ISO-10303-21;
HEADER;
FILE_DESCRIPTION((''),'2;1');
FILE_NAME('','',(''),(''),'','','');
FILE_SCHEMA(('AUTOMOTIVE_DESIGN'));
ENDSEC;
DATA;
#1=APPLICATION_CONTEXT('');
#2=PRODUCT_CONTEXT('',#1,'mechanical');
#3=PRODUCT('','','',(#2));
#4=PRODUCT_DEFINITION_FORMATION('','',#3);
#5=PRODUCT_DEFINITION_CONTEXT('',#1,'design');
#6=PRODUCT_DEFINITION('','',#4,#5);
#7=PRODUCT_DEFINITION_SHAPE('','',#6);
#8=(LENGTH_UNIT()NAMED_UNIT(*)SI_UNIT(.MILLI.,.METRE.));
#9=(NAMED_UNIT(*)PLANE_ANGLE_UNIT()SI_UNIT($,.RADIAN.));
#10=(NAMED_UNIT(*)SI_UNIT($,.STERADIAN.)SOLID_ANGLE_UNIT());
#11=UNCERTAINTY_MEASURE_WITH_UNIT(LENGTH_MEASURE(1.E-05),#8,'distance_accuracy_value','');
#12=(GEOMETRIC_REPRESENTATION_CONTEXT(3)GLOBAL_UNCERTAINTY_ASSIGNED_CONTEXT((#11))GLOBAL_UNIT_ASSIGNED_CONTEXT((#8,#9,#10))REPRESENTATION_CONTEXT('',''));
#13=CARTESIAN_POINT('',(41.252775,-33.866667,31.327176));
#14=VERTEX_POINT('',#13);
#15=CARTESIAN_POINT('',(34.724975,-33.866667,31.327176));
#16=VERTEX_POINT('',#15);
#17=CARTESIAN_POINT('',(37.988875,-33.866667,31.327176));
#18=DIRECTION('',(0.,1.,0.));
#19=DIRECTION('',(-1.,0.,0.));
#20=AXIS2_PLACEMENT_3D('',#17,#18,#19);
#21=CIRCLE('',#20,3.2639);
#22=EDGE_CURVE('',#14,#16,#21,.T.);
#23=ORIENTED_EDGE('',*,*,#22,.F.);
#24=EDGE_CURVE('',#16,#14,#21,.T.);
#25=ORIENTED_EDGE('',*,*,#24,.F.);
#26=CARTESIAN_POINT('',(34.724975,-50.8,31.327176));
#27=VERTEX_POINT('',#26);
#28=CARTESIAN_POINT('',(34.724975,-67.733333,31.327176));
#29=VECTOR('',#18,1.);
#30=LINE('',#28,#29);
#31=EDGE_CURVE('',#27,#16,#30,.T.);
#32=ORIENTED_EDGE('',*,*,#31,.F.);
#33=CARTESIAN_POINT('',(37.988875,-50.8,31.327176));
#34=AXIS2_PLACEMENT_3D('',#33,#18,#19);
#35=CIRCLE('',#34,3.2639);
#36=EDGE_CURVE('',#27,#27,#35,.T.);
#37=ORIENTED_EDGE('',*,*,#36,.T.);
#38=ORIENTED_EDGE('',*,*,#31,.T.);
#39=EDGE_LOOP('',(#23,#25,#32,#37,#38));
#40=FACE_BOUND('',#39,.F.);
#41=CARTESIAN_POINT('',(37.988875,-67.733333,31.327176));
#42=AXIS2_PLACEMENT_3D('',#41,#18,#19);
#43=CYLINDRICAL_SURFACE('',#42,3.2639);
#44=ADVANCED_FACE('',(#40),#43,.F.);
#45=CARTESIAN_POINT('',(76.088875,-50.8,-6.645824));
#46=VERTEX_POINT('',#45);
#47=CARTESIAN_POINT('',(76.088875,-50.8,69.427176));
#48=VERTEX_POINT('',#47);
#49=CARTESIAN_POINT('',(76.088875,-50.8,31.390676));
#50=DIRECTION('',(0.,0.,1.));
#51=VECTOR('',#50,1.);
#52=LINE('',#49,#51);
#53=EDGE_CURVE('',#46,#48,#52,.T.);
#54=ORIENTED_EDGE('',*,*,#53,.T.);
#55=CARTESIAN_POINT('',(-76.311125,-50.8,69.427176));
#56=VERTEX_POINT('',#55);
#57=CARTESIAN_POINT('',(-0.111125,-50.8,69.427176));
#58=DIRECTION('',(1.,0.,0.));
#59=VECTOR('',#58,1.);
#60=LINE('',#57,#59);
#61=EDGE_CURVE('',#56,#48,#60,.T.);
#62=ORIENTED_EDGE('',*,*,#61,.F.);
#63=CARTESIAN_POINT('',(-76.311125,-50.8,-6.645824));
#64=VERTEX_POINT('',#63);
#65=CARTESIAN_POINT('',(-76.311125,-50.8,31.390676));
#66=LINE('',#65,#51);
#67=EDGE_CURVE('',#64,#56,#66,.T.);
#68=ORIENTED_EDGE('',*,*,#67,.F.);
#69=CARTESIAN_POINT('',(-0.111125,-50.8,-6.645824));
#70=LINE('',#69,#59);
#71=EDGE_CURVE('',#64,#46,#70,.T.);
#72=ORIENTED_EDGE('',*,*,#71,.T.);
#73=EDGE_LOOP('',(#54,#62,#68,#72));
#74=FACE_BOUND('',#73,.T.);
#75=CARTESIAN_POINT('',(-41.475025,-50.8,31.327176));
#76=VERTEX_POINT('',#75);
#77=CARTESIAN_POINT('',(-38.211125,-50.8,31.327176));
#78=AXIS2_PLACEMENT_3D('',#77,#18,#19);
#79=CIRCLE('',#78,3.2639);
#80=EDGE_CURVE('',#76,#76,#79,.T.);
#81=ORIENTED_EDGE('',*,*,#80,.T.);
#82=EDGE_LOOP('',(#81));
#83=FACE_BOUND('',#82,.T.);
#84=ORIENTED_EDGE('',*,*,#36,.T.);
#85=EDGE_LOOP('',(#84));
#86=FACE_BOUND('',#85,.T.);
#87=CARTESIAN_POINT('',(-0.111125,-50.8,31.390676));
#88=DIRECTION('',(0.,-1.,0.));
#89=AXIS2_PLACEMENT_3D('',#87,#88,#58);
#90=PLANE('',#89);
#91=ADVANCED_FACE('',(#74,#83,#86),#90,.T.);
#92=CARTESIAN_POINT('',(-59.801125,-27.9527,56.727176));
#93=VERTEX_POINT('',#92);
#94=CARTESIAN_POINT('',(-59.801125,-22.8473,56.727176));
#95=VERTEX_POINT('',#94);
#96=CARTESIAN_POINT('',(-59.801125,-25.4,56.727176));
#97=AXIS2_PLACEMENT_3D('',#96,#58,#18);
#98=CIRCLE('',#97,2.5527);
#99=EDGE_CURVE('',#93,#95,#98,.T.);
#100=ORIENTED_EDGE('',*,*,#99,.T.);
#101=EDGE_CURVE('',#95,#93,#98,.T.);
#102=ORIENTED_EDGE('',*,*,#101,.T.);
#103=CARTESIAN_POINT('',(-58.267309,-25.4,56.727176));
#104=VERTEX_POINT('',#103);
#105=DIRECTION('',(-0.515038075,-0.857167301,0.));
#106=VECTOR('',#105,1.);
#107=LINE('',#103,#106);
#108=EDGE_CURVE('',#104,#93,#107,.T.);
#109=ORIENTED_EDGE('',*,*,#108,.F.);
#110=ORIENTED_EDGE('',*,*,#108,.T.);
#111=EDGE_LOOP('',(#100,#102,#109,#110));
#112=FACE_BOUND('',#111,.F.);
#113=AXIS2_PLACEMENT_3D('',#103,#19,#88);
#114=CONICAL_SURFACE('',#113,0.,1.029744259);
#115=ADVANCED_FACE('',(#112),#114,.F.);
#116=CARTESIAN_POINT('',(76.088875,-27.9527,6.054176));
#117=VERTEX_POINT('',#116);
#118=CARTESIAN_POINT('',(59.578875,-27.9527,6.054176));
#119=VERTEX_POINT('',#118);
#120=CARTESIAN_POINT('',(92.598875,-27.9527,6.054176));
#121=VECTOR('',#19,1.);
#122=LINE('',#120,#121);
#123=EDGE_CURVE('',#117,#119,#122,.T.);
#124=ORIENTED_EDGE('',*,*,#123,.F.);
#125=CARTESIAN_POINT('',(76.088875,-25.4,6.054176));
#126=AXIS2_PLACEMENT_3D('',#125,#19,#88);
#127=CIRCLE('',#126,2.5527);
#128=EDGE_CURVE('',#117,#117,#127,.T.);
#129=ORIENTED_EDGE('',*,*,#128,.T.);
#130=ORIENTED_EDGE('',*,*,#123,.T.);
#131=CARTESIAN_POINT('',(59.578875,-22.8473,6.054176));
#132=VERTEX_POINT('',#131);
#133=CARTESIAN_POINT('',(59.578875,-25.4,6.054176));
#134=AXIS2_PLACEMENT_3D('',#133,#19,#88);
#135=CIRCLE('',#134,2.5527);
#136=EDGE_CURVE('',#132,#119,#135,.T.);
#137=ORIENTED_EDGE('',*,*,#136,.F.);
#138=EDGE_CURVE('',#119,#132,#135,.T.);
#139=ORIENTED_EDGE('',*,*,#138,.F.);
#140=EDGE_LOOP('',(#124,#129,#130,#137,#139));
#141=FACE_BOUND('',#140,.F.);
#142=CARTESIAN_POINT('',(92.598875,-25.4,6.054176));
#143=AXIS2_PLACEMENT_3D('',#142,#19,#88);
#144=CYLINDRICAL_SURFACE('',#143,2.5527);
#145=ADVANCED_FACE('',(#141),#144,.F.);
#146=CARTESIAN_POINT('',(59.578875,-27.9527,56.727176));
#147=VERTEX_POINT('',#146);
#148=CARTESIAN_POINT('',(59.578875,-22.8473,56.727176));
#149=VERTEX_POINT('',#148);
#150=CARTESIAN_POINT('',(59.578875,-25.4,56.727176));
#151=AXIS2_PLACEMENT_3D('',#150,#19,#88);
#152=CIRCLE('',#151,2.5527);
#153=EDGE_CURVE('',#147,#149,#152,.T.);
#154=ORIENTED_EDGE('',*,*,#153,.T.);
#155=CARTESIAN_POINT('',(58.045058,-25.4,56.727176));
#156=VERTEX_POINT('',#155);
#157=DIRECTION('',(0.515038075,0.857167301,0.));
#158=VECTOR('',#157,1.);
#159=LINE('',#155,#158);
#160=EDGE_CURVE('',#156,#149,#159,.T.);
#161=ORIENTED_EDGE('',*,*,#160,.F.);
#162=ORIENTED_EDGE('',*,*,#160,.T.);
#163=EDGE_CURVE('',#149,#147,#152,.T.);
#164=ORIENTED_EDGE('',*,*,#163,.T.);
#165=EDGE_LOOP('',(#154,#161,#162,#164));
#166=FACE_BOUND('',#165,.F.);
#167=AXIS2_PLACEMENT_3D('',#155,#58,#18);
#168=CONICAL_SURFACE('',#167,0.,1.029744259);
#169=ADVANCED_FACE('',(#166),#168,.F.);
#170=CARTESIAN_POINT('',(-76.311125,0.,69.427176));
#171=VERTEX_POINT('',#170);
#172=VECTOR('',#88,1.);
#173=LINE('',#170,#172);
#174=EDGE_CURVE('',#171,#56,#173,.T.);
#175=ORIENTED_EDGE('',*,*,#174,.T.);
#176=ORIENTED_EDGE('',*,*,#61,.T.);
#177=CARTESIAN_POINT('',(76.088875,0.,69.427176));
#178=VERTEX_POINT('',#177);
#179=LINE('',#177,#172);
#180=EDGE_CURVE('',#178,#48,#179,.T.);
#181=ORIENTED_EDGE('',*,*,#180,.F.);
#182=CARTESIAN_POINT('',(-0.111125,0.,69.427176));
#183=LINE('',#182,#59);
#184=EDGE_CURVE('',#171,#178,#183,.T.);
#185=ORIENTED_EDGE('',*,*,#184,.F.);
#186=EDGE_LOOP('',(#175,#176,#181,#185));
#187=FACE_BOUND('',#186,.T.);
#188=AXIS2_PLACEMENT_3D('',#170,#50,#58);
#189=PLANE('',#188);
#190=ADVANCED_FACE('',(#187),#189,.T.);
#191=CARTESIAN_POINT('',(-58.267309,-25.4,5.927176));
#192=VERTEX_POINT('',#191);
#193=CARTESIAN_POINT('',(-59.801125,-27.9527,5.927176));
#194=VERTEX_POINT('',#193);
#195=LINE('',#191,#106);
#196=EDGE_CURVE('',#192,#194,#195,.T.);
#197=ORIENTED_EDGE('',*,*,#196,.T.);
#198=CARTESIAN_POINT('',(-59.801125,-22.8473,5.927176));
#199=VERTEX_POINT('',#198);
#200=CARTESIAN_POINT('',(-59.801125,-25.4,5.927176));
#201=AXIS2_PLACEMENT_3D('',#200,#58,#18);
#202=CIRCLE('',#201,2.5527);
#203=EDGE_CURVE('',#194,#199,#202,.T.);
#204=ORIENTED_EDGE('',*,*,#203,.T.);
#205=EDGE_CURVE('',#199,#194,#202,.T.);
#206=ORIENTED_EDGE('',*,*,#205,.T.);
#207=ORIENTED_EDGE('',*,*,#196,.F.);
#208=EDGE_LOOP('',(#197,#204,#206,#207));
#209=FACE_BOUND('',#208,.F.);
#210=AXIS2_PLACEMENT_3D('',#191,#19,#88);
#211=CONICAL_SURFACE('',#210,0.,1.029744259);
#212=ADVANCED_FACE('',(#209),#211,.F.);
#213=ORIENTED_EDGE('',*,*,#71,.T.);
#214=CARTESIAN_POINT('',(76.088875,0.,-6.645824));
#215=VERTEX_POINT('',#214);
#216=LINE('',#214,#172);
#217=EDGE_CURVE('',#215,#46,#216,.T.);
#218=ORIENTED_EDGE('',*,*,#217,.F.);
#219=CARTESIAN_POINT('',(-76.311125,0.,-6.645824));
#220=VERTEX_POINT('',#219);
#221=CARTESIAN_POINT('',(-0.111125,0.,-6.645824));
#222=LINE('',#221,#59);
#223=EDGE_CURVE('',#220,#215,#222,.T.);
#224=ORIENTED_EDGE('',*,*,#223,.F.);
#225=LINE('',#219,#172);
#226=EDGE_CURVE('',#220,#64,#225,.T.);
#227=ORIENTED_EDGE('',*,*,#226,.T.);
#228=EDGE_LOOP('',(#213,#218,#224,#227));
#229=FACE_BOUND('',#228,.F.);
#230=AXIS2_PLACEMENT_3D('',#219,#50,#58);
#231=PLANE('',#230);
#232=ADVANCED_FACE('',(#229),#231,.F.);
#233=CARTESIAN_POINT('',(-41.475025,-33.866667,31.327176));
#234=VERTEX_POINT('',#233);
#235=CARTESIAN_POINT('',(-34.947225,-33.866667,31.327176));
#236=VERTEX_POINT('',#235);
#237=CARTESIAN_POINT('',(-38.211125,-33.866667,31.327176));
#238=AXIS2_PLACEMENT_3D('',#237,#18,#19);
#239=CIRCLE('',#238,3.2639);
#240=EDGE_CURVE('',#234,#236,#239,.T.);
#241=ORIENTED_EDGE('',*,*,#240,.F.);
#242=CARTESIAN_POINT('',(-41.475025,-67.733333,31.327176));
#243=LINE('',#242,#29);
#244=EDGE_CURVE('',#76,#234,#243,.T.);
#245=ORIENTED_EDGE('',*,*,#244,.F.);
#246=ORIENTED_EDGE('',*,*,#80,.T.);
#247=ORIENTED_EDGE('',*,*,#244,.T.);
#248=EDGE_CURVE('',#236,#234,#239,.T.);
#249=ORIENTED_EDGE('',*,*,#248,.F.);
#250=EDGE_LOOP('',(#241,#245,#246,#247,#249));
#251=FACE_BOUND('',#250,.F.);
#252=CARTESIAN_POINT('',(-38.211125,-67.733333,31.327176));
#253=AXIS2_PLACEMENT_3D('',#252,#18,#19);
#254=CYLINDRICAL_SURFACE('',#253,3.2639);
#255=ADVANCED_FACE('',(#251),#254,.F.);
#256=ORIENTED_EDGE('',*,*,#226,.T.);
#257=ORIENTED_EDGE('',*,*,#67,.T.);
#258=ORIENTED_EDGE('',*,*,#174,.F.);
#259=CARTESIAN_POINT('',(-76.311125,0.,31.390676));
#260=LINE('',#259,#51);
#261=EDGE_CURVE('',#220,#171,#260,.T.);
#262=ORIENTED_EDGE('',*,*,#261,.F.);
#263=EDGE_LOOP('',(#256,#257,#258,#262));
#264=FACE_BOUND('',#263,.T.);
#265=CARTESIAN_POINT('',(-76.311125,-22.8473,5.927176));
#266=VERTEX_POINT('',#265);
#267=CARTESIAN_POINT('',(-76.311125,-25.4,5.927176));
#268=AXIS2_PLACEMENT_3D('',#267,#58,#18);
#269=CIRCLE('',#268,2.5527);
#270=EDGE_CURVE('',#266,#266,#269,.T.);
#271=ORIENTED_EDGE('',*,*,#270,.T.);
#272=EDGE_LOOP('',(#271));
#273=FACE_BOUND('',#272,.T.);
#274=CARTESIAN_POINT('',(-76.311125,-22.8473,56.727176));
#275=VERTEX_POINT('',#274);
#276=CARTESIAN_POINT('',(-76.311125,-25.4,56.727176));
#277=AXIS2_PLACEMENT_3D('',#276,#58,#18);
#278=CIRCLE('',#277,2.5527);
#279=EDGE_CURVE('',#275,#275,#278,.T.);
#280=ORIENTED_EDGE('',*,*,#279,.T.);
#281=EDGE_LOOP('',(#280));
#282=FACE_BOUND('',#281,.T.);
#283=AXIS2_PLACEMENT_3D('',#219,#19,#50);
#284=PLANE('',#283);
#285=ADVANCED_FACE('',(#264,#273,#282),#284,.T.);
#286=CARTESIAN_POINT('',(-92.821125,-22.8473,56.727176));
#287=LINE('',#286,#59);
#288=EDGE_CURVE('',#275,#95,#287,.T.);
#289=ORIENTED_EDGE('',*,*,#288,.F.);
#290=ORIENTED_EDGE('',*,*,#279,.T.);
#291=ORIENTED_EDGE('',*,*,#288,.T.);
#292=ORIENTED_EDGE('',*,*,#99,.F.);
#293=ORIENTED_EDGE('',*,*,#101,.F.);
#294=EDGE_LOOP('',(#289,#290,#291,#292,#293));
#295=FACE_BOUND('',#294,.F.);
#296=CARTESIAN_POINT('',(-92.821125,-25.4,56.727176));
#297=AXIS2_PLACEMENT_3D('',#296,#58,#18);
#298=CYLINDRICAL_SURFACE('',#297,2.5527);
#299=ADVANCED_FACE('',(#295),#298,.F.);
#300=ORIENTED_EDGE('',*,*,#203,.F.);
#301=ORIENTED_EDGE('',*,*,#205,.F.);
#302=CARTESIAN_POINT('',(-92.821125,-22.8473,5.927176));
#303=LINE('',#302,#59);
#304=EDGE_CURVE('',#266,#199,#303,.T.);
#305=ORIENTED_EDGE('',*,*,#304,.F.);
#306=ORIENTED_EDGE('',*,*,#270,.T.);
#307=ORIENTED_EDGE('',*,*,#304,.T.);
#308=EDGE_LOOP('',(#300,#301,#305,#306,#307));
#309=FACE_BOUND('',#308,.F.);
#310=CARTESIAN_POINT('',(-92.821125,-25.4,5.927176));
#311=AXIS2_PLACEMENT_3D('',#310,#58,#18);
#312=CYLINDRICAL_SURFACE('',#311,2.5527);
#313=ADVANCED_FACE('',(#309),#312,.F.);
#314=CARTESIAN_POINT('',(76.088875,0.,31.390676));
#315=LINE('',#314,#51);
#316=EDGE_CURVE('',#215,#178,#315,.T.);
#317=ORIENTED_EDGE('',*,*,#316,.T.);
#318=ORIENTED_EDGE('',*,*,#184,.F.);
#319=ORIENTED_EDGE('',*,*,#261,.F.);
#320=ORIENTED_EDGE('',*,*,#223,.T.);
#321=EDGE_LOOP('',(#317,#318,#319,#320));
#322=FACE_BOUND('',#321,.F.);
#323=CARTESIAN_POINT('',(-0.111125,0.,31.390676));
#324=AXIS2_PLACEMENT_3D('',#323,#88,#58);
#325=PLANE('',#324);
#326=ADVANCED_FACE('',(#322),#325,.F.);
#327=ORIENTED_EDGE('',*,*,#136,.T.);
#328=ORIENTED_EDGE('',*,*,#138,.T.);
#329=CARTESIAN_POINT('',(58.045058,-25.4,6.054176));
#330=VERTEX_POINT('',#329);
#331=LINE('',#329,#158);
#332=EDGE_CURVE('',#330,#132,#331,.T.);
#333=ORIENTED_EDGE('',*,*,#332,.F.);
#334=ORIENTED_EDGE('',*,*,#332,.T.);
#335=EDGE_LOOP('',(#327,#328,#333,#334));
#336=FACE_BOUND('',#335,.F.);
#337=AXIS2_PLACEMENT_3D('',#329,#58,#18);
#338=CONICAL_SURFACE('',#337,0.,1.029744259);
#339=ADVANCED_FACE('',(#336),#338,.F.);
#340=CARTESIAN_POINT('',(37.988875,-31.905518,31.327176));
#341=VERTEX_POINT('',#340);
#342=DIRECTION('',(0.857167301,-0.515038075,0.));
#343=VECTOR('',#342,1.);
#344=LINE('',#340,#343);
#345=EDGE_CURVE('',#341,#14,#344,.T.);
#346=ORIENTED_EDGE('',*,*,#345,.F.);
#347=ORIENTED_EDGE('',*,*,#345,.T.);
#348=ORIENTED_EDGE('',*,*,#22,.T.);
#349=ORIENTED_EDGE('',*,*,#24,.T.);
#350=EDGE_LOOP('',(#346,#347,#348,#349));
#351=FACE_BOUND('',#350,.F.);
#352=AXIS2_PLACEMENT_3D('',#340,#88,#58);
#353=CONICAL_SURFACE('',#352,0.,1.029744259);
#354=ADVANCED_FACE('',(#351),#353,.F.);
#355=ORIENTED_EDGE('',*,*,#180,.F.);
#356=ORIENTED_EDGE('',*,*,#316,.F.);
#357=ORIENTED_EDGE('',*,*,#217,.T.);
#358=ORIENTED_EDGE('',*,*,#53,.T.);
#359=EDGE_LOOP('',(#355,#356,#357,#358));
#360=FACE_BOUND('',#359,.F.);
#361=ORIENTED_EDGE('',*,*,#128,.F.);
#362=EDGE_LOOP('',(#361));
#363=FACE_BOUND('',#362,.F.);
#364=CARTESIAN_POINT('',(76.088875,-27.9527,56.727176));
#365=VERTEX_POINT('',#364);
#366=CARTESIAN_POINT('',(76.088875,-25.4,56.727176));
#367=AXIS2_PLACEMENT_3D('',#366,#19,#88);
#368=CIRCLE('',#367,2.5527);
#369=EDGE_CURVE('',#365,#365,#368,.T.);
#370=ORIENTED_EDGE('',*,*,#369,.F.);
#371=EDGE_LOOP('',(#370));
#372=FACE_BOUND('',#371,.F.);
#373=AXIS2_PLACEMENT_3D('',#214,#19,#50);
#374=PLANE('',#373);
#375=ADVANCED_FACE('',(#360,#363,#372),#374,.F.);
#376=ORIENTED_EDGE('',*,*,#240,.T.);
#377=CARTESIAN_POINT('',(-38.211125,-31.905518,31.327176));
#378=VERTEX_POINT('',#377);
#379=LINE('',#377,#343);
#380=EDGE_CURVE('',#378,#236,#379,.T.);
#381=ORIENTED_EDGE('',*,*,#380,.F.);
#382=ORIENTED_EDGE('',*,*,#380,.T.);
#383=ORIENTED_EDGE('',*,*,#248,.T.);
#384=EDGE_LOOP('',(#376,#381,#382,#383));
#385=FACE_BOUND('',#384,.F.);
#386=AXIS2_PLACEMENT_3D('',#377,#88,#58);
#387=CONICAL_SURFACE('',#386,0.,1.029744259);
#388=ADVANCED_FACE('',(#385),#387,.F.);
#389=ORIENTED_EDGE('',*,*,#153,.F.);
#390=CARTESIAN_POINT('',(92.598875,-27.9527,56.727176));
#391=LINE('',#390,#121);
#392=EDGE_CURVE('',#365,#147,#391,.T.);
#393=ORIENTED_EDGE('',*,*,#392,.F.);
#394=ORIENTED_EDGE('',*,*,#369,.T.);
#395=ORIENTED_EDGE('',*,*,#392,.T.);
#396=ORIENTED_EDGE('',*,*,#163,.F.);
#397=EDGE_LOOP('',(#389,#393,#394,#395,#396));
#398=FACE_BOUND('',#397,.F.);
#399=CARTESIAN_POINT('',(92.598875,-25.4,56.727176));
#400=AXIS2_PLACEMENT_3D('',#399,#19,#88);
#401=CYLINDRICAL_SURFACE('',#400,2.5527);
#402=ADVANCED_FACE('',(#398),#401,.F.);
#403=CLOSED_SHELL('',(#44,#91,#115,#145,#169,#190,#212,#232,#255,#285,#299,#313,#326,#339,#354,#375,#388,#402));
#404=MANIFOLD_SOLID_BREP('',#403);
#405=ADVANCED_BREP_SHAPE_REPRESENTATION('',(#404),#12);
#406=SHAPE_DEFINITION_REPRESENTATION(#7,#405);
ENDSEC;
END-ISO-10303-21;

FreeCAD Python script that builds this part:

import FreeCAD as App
import Part
import Sketcher

V = App.Vector
Q = App.Units.Quantity


def add_polygon(sketch, points):
    """Adds a closed chain of lines whose ends are joined by coincident constraints."""
    first, n = sketch.GeometryCount, len(points)
    for a, b in zip(points, points[1:] + points[:1]):
        sketch.addGeometry(Part.LineSegment(App.Vector(*a, 0), App.Vector(*b, 0)), False)
    for i in range(n):
        sketch.addConstraint(Sketcher.Constraint("Coincident", first + i, 2, first + (i + 1) % n, 1))

doc = App.newDocument("Part")
body = doc.addObject("PartDesign::Body", "Body")

sketch1 = doc.addObject("Sketcher::SketchObject", "Sketch")
body.addObject(sketch1)
sketch1.AttachmentSupport = (doc.XZ_Plane, [""])
sketch1.MapMode = "FlatFace"
add_polygon(sketch1, [(-76, 69), (-76, -7), (76, -7), (76, 69)])
sketch1.addConstraint(Sketcher.Constraint("Vertical", 0))
sketch1.addConstraint(Sketcher.Constraint("Horizontal", 1))
sketch1.addConstraint(Sketcher.Constraint("Vertical", 2))
sketch1.addConstraint(Sketcher.Constraint("Horizontal", 3))
sketch1.addConstraint(Sketcher.Constraint("DistanceX", 1, 1, 1, 2, Q("6 in")))
sketch1.addConstraint(Sketcher.Constraint("DistanceY", 0, 2, 0, 1, Q("2.995 in")))
sketch1.addConstraint(Sketcher.Constraint("DistanceX", 0, 2, -1, 1, Q("76.311125 mm")))
sketch1.addConstraint(Sketcher.Constraint("DistanceY", 0, 2, -1, 1, Q("6.645824 mm")))
pad1 = doc.addObject("PartDesign::Pad", "Pad")
body.addObject(pad1)
pad1.Profile = sketch1
pad1.Length = Q("2 in")

sketch2 = doc.addObject("Sketcher::SketchObject", "Sketch001")
body.addObject(sketch2)
sketch2.AttachmentSupport = (doc.YZ_Plane, [""])
sketch2.MapMode = "FlatFace"
sketch2.AttachmentOffset = App.Placement(V(0, 0, -76.311125), App.Rotation())
sketch2.addGeometry(Part.Circle(V(-25.4, 56.7, 0), V(0, 0, 1), 2.6), False)
sketch2.addGeometry(Part.Circle(V(-25.4, 5.9, 0), V(0, 0, 1), 2.6), False)
sketch2.addConstraint(Sketcher.Constraint("Equal", 0, 1))
sketch2.addConstraint(Sketcher.Constraint("Vertical", 0, 3, 1, 3))
sketch2.addConstraint(Sketcher.Constraint("Diameter", 0, Q("0.201 in")))
sketch2.addConstraint(Sketcher.Constraint("DistanceX", 0, 3, -1, 1, Q("1 in")))
sketch2.addConstraint(Sketcher.Constraint("DistanceY", 1, 3, 0, 3, Q("2 in")))
sketch2.addConstraint(Sketcher.Constraint("DistanceY", -1, 1, 0, 3, Q("56.727176 mm")))
doc.recompute()
hole = doc.addObject("PartDesign::Hole", "Hole")
body.addObject(hole)
hole.Profile = sketch2
hole.ThreadType = "None"
hole.Diameter = Q("0.201 in")
hole.DepthType = "Dimension"
hole.Depth = Q("0.65 in")
hole.DrillPoint = "Angled"
hole.DrillPointAngle = 118
hole.Reversed = True

sketch3 = doc.addObject("Sketcher::SketchObject", "Sketch002")
body.addObject(sketch3)
sketch3.AttachmentSupport = (doc.YZ_Plane, [""])
sketch3.MapMode = "FlatFace"
sketch3.AttachmentOffset = App.Placement(V(0, 0, 76.088875), App.Rotation())
sketch3.addGeometry(Part.Circle(V(-25.4, 56.7, 0), V(0, 0, 1), 2.6), False)
sketch3.addGeometry(Part.Circle(V(-25.4, 6.1, 0), V(0, 0, 1), 2.6), False)
sketch3.addConstraint(Sketcher.Constraint("Equal", 0, 1))
sketch3.addConstraint(Sketcher.Constraint("Vertical", 0, 3, 1, 3))
sketch3.addConstraint(Sketcher.Constraint("Diameter", 0, Q("0.201 in")))
sketch3.addConstraint(Sketcher.Constraint("DistanceX", 0, 3, -1, 1, Q("1 in")))
sketch3.addConstraint(Sketcher.Constraint("DistanceY", 1, 3, 0, 3, Q("1.995 in")))
sketch3.addConstraint(Sketcher.Constraint("DistanceY", -1, 1, 0, 3, Q("56.727176 mm")))
doc.recompute()
hole2 = doc.addObject("PartDesign::Hole", "Hole001")
body.addObject(hole2)
hole2.Profile = sketch3
hole2.ThreadType = "None"
hole2.Diameter = Q("0.201 in")
hole2.DepthType = "Dimension"
hole2.Depth = Q("0.65 in")
hole2.DrillPoint = "Angled"
hole2.DrillPointAngle = 118

sketch4 = doc.addObject("Sketcher::SketchObject", "Sketch003")
body.addObject(sketch4)
sketch4.AttachmentSupport = (doc.XZ_Plane, [""])
sketch4.MapMode = "FlatFace"
sketch4.AttachmentOffset = App.Placement(V(0, 0, 2 * 25.4), App.Rotation())
sketch4.addGeometry(Part.Circle(V(-38.2, 31.3, 0), V(0, 0, 1), 3.3), False)
sketch4.addGeometry(Part.Circle(V(38, 31.3, 0), V(0, 0, 1), 3.3), False)
sketch4.addConstraint(Sketcher.Constraint("Equal", 0, 1))
sketch4.addConstraint(Sketcher.Constraint("Horizontal", 0, 3, 1, 3))
sketch4.addConstraint(Sketcher.Constraint("Diameter", 0, Q("0.257 in")))
sketch4.addConstraint(Sketcher.Constraint("DistanceX", 0, 3, 1, 3, Q("3 in")))
sketch4.addConstraint(Sketcher.Constraint("DistanceX", 0, 3, -1, 1, Q("38.211125 mm")))
sketch4.addConstraint(Sketcher.Constraint("DistanceY", -1, 1, 0, 3, Q("31.327176 mm")))
doc.recompute()
hole3 = doc.addObject("PartDesign::Hole", "Hole002")
body.addObject(hole3)
hole3.Profile = sketch4
hole3.ThreadType = "None"
hole3.Diameter = Q("0.257 in")
hole3.DepthType = "Dimension"
hole3.Depth = 16.933333
hole3.DrillPoint = "Angled"
hole3.DrillPointAngle = 118

doc.recompute()
